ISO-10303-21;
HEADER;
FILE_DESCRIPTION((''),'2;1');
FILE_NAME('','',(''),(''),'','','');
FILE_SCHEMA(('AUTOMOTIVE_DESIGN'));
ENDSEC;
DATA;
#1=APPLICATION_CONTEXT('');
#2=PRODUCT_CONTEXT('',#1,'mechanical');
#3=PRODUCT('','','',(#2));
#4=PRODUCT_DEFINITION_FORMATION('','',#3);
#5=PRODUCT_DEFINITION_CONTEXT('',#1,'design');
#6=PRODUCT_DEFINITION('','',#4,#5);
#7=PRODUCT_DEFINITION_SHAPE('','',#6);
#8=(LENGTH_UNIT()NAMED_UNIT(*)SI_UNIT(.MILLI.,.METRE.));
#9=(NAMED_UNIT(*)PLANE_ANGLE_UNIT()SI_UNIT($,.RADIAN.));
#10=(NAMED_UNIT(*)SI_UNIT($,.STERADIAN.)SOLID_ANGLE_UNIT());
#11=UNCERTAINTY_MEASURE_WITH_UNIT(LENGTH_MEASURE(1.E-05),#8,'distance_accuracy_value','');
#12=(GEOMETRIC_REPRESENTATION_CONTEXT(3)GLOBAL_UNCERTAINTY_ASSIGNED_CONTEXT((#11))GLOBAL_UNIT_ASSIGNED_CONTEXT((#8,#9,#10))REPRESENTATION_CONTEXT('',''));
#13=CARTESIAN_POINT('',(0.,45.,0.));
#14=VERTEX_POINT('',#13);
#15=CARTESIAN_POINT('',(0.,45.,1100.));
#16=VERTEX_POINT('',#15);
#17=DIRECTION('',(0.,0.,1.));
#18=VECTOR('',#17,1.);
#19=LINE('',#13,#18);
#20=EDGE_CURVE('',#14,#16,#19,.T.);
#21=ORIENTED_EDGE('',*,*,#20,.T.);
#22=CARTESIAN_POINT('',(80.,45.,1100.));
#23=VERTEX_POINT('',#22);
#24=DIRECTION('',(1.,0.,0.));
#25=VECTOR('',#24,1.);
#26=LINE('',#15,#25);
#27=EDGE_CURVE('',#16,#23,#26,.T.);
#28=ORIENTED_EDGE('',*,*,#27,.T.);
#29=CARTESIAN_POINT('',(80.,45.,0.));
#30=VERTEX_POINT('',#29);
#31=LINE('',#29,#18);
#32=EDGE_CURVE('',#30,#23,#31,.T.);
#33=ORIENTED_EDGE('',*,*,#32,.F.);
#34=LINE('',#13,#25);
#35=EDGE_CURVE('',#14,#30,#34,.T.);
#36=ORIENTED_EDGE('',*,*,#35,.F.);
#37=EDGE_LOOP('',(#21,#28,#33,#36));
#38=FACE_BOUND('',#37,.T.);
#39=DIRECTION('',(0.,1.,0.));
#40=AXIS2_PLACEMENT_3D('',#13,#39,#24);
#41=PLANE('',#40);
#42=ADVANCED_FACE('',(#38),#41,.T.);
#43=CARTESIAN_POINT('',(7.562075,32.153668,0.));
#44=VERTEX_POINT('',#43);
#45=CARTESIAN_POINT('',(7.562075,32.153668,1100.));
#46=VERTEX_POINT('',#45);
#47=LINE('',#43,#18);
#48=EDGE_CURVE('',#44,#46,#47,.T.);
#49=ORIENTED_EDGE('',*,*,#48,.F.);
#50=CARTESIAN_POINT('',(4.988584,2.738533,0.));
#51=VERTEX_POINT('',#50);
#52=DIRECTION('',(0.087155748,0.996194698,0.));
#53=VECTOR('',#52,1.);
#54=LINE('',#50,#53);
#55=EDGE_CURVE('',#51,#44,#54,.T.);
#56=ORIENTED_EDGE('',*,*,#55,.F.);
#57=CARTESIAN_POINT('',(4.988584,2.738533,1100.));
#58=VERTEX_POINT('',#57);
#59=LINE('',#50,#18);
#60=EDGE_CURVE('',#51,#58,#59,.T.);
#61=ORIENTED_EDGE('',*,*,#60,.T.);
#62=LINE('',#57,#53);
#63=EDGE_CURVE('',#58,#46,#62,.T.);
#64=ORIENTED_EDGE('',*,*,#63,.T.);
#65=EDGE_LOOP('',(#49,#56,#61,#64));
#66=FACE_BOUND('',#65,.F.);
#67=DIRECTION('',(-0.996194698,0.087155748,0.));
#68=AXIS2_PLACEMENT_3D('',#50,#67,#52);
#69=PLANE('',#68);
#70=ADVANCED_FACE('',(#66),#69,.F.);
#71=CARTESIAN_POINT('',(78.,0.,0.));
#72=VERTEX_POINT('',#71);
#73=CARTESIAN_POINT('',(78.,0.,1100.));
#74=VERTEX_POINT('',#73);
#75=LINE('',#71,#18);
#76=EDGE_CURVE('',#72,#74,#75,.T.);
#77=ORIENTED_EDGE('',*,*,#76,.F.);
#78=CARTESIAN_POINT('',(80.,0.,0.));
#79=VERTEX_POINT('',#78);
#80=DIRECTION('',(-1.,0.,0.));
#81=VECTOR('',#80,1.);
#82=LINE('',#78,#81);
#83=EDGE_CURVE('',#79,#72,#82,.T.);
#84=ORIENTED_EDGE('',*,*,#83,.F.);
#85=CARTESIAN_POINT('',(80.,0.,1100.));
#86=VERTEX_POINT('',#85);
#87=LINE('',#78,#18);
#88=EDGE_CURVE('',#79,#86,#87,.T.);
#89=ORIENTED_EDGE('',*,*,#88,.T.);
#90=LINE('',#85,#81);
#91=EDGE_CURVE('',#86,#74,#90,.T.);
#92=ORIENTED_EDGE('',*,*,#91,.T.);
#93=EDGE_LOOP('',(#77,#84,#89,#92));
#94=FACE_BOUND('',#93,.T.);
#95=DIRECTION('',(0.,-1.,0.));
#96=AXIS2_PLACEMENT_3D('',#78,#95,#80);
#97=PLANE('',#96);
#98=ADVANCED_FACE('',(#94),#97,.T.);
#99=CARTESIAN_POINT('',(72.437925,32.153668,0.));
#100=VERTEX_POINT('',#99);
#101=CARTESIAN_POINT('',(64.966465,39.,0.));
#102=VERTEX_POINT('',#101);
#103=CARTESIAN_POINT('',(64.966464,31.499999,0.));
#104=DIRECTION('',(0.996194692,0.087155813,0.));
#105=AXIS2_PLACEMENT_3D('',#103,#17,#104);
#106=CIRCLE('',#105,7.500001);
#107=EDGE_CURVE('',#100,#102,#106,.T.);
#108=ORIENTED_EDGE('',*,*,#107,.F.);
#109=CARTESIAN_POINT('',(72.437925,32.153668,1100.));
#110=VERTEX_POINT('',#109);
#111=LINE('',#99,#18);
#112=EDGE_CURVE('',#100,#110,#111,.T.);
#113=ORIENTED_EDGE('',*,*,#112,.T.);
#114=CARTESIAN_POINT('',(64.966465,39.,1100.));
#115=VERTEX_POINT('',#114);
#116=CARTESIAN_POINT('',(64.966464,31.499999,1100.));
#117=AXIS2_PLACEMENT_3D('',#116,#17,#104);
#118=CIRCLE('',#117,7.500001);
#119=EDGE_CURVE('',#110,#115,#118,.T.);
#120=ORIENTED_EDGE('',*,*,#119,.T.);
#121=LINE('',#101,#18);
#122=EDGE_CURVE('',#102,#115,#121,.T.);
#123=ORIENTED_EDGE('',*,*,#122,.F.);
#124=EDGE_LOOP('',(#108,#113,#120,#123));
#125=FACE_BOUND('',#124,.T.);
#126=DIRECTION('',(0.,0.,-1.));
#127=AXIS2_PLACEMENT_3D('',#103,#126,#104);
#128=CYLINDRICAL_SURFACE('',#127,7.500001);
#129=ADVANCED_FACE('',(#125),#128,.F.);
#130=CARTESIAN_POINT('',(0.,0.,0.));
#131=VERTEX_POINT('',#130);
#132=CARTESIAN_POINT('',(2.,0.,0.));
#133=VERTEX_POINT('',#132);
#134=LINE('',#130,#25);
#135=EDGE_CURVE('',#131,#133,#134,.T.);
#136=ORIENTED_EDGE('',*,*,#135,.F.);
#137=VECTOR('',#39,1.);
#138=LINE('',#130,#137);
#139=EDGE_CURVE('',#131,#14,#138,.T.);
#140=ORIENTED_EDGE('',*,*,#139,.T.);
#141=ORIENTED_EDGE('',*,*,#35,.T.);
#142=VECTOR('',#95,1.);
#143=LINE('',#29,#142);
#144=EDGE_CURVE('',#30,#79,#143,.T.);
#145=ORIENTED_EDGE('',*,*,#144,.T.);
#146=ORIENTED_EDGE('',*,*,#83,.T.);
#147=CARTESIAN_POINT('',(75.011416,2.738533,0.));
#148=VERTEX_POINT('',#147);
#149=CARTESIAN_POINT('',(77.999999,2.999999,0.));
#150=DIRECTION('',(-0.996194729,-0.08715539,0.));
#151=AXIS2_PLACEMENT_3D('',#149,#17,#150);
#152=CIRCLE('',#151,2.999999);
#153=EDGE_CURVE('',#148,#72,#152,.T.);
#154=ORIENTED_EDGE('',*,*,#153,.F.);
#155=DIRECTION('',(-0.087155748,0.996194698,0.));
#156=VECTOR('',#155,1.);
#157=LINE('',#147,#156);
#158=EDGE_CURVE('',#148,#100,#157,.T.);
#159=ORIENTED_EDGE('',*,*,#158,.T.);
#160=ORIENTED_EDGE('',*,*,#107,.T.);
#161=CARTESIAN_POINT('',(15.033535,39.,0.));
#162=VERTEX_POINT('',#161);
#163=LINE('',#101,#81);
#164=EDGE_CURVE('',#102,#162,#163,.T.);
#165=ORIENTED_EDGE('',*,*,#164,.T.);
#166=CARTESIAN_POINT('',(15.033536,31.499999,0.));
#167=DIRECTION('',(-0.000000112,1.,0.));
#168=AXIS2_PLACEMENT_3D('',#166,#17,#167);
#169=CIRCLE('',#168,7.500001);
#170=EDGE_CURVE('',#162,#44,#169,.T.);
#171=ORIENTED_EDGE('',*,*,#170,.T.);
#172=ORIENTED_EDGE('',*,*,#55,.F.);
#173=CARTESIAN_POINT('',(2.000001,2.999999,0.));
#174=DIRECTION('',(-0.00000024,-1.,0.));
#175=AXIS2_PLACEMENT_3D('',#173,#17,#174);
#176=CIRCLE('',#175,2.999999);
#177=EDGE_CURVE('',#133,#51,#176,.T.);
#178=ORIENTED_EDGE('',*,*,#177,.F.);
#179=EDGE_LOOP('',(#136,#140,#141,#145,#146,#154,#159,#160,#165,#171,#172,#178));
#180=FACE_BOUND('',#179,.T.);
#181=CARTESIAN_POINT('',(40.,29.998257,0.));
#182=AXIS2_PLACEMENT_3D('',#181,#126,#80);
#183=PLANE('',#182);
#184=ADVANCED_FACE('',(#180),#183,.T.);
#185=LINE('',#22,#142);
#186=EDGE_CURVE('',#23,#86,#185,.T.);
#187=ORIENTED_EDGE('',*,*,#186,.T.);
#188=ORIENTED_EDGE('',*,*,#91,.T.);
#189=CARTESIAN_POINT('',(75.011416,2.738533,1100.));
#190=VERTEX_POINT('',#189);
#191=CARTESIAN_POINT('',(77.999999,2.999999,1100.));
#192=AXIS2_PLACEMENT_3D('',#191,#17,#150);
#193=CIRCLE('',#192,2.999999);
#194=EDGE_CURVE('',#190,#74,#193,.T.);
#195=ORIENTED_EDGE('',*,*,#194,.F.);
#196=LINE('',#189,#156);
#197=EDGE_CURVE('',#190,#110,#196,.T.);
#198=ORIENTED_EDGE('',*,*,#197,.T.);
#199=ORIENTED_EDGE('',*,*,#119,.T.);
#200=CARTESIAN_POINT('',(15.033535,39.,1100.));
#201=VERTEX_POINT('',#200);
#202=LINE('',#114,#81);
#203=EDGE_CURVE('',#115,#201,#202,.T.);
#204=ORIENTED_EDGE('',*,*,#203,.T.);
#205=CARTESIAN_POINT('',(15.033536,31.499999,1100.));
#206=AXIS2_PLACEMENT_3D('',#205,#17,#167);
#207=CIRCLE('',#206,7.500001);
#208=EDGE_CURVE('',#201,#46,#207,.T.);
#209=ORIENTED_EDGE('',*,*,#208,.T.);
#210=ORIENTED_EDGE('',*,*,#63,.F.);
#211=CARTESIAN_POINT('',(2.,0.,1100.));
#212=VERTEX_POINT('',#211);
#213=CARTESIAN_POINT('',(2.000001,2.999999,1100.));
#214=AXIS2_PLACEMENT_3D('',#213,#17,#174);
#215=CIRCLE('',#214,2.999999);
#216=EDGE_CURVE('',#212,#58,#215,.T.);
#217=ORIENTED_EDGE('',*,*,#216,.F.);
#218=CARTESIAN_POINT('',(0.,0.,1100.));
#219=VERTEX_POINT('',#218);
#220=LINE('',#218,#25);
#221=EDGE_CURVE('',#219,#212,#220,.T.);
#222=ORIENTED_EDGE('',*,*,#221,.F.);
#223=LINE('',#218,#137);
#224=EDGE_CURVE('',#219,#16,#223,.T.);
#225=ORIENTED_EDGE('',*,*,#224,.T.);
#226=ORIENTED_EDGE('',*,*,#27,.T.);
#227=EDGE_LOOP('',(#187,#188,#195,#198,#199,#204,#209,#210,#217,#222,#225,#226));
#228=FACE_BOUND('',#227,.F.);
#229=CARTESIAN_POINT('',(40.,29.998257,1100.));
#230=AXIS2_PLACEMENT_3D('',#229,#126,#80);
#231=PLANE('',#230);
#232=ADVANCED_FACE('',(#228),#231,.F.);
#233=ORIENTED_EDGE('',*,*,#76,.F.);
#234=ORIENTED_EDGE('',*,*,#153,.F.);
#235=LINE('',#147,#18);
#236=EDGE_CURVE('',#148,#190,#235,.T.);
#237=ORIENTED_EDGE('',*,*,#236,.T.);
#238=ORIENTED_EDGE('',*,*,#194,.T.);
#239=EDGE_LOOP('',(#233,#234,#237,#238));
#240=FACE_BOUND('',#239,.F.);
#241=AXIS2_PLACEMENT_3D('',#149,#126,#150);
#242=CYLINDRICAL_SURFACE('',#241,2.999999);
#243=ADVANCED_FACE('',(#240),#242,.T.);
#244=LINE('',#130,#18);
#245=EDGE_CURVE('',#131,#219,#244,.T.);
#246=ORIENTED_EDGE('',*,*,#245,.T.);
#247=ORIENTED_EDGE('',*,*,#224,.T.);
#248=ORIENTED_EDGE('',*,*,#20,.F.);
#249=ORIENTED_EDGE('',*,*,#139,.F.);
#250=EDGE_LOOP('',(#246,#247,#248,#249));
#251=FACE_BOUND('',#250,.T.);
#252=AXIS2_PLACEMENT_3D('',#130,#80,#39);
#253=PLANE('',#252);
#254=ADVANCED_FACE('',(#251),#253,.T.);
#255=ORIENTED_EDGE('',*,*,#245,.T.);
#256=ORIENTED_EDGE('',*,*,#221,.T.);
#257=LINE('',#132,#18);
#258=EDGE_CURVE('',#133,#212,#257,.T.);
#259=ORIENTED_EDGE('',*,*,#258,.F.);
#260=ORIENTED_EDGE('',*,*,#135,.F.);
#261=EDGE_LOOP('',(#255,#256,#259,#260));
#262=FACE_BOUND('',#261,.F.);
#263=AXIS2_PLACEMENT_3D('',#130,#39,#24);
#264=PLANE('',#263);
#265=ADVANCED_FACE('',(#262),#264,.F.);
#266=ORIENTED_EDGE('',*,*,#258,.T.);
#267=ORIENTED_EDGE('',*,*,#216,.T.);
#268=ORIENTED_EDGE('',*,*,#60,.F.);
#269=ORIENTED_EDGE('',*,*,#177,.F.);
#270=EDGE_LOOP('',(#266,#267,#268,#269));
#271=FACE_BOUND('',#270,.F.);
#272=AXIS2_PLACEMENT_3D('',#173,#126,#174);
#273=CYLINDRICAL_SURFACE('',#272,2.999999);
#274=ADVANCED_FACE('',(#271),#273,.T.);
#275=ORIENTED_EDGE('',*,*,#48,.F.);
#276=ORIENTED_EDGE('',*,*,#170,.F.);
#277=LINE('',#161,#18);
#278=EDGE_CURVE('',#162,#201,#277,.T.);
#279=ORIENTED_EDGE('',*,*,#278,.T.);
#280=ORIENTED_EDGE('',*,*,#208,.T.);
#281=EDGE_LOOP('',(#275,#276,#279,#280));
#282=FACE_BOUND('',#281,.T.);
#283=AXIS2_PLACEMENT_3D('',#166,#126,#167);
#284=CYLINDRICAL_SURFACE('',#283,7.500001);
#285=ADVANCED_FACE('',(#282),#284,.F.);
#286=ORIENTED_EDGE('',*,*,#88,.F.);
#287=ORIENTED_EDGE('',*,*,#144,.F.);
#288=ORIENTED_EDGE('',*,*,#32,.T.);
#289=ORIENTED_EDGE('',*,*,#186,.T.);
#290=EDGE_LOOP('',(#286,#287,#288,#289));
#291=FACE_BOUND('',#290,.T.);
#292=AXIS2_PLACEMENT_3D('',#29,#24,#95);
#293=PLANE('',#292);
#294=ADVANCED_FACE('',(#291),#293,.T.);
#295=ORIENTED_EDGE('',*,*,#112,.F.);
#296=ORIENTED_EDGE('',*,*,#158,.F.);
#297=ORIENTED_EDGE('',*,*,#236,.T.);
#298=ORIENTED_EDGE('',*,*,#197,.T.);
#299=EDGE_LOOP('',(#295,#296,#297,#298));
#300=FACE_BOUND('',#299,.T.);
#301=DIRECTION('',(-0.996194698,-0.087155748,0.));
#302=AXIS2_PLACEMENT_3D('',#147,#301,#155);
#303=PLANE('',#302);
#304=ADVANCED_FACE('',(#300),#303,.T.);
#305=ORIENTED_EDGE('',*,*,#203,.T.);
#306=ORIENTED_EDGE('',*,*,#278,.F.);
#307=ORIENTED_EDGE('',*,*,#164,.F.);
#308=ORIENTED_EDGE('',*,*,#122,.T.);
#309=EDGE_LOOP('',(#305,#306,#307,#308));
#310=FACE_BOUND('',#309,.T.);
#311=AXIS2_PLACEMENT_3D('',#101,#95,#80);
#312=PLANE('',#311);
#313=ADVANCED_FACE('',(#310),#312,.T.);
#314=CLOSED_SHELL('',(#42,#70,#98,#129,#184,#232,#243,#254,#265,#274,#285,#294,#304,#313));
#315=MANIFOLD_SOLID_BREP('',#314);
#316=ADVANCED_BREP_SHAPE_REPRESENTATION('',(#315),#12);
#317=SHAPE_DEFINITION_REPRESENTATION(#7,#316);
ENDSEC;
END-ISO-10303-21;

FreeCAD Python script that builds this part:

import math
import FreeCAD as App
import Part
import Sketcher
from FreeCAD import Vector
Q = App.Units.Quantity

doc = App.newDocument("Part")
body = doc.addObject("PartDesign::Body", "Body")

# Sketch on XY plane
sketch1 = body.newObject("Sketcher::SketchObject", "Sketch")
sketch1.AttachmentSupport = (doc.getObject("XY_Plane"), [""])
sketch1.MapMode = "FlatFace"
sketch1.addGeometry([
    Part.LineSegment(Vector(0, 45, 0), Vector(0, 0, 0)),  # 0
    Part.LineSegment(Vector(0, 0, 0), Vector(2, 0, 0)),  # 1
    Part.ArcOfCircle(Part.Circle(Vector(2, 3, 0), Vector(0, 0, 1), 3), math.radians(-90), math.radians(-5)),  # 2
    Part.LineSegment(Vector(5, 2.7, 0), Vector(7.6, 32.2, 0)),  # 3
    Part.ArcOfCircle(Part.Circle(Vector(15, 31.5, 0), Vector(0, 0, 1), 7.5), math.radians(90), math.radians(175)),  # 4
    Part.LineSegment(Vector(15, 39, 0), Vector(65, 39, 0)),  # 5
    Part.ArcOfCircle(Part.Circle(Vector(65, 31.5, 0), Vector(0, 0, 1), 7.5), math.radians(5), math.radians(90)),  # 6
    Part.LineSegment(Vector(72.4, 32.2, 0), Vector(75, 2.7, 0)),  # 7
    Part.ArcOfCircle(Part.Circle(Vector(78, 3, 0), Vector(0, 0, 1), 3), math.radians(-175), math.radians(-90)),  # 8
    Part.LineSegment(Vector(78, 0, 0), Vector(80, 0, 0)),  # 9
    Part.LineSegment(Vector(80, 0, 0), Vector(80, 45, 0)),  # 10
    Part.LineSegment(Vector(80, 45, 0), Vector(0, 45, 0)),  # 11
], False)
sketch1.addConstraint([
    Sketcher.Constraint("Coincident", 0, 2, 1, 1),
    Sketcher.Constraint("Tangent", 1, 2, 2, 1),
    Sketcher.Constraint("Tangent", 2, 2, 3, 1),
    Sketcher.Constraint("Tangent", 3, 2, 4, 2),
    Sketcher.Constraint("Tangent", 4, 1, 5, 1),
    Sketcher.Constraint("Tangent", 5, 2, 6, 2),
    Sketcher.Constraint("Tangent", 6, 1, 7, 1),
    Sketcher.Constraint("Tangent", 7, 2, 8, 1),
    Sketcher.Constraint("Tangent", 8, 2, 9, 1),
    Sketcher.Constraint("Coincident", 9, 2, 10, 1),
    Sketcher.Constraint("Coincident", 10, 2, 11, 1),
    Sketcher.Constraint("Coincident", 11, 2, 0, 1),
    Sketcher.Constraint("Vertical", 0),
    Sketcher.Constraint("Horizontal", 1),
    Sketcher.Constraint("Horizontal", 5),
    Sketcher.Constraint("Horizontal", 9),
    Sketcher.Constraint("Vertical", 10),
    Sketcher.Constraint("Horizontal", 11),
    Sketcher.Constraint("Coincident", 0, 2, -1, 1),
    Sketcher.Constraint("Equal", 4, 6),
    Sketcher.Constraint("Equal", 2, 8),
    Sketcher.Constraint("PointOnObject", 8, 2, -1),
    Sketcher.Constraint("Horizontal", 3, 2, 6, 1),
    Sketcher.Constraint("Equal", 1, 9),
    Sketcher.Constraint("Radius", 2, 2.999999),
    Sketcher.Constraint("Radius", 4, 7.500001),
    Sketcher.Constraint("DistanceX", 1, 1, 1, 2, 2.0),
    Sketcher.Constraint("DistanceX", 11, 2, 11, 1, 80.0),
    Sketcher.Constraint("DistanceY", 0, 2, 0, 1, 45.0),
    Sketcher.Constraint("Angle", 3, Q("85 deg")),
    Sketcher.Constraint("DistanceY", -1, 1, 4, 1, 39.0),
])
pad1 = body.newObject("PartDesign::Pad", "Pad")
pad1.Profile = sketch1
pad1.Length = 1100

# Sketch on YZ plane
sketch2 = body.newObject("Sketcher::SketchObject", "Sketch001")
sketch2.AttachmentSupport = (doc.getObject("YZ_Plane"), [""])
sketch2.MapMode = "FlatFace"
sketch2.addGeometry(Part.Circle(Vector(62, 1050, 0), Vector(0, 0, 1), 6), False)
sketch2.addConstraint([
    Sketcher.Constraint("Diameter", 0, 12.0),
    Sketcher.Constraint("DistanceX", -1, 1, 0, 3, 62.0),
    Sketcher.Constraint("DistanceY", -1, 1, 0, 3, 1050.0),
])
pocket1 = body.newObject("PartDesign::Pocket", "Pocket")
pocket1.Profile = sketch2
pocket1.Type = "ThroughAll"
pocket1.Reversed = True

doc.recompute()
